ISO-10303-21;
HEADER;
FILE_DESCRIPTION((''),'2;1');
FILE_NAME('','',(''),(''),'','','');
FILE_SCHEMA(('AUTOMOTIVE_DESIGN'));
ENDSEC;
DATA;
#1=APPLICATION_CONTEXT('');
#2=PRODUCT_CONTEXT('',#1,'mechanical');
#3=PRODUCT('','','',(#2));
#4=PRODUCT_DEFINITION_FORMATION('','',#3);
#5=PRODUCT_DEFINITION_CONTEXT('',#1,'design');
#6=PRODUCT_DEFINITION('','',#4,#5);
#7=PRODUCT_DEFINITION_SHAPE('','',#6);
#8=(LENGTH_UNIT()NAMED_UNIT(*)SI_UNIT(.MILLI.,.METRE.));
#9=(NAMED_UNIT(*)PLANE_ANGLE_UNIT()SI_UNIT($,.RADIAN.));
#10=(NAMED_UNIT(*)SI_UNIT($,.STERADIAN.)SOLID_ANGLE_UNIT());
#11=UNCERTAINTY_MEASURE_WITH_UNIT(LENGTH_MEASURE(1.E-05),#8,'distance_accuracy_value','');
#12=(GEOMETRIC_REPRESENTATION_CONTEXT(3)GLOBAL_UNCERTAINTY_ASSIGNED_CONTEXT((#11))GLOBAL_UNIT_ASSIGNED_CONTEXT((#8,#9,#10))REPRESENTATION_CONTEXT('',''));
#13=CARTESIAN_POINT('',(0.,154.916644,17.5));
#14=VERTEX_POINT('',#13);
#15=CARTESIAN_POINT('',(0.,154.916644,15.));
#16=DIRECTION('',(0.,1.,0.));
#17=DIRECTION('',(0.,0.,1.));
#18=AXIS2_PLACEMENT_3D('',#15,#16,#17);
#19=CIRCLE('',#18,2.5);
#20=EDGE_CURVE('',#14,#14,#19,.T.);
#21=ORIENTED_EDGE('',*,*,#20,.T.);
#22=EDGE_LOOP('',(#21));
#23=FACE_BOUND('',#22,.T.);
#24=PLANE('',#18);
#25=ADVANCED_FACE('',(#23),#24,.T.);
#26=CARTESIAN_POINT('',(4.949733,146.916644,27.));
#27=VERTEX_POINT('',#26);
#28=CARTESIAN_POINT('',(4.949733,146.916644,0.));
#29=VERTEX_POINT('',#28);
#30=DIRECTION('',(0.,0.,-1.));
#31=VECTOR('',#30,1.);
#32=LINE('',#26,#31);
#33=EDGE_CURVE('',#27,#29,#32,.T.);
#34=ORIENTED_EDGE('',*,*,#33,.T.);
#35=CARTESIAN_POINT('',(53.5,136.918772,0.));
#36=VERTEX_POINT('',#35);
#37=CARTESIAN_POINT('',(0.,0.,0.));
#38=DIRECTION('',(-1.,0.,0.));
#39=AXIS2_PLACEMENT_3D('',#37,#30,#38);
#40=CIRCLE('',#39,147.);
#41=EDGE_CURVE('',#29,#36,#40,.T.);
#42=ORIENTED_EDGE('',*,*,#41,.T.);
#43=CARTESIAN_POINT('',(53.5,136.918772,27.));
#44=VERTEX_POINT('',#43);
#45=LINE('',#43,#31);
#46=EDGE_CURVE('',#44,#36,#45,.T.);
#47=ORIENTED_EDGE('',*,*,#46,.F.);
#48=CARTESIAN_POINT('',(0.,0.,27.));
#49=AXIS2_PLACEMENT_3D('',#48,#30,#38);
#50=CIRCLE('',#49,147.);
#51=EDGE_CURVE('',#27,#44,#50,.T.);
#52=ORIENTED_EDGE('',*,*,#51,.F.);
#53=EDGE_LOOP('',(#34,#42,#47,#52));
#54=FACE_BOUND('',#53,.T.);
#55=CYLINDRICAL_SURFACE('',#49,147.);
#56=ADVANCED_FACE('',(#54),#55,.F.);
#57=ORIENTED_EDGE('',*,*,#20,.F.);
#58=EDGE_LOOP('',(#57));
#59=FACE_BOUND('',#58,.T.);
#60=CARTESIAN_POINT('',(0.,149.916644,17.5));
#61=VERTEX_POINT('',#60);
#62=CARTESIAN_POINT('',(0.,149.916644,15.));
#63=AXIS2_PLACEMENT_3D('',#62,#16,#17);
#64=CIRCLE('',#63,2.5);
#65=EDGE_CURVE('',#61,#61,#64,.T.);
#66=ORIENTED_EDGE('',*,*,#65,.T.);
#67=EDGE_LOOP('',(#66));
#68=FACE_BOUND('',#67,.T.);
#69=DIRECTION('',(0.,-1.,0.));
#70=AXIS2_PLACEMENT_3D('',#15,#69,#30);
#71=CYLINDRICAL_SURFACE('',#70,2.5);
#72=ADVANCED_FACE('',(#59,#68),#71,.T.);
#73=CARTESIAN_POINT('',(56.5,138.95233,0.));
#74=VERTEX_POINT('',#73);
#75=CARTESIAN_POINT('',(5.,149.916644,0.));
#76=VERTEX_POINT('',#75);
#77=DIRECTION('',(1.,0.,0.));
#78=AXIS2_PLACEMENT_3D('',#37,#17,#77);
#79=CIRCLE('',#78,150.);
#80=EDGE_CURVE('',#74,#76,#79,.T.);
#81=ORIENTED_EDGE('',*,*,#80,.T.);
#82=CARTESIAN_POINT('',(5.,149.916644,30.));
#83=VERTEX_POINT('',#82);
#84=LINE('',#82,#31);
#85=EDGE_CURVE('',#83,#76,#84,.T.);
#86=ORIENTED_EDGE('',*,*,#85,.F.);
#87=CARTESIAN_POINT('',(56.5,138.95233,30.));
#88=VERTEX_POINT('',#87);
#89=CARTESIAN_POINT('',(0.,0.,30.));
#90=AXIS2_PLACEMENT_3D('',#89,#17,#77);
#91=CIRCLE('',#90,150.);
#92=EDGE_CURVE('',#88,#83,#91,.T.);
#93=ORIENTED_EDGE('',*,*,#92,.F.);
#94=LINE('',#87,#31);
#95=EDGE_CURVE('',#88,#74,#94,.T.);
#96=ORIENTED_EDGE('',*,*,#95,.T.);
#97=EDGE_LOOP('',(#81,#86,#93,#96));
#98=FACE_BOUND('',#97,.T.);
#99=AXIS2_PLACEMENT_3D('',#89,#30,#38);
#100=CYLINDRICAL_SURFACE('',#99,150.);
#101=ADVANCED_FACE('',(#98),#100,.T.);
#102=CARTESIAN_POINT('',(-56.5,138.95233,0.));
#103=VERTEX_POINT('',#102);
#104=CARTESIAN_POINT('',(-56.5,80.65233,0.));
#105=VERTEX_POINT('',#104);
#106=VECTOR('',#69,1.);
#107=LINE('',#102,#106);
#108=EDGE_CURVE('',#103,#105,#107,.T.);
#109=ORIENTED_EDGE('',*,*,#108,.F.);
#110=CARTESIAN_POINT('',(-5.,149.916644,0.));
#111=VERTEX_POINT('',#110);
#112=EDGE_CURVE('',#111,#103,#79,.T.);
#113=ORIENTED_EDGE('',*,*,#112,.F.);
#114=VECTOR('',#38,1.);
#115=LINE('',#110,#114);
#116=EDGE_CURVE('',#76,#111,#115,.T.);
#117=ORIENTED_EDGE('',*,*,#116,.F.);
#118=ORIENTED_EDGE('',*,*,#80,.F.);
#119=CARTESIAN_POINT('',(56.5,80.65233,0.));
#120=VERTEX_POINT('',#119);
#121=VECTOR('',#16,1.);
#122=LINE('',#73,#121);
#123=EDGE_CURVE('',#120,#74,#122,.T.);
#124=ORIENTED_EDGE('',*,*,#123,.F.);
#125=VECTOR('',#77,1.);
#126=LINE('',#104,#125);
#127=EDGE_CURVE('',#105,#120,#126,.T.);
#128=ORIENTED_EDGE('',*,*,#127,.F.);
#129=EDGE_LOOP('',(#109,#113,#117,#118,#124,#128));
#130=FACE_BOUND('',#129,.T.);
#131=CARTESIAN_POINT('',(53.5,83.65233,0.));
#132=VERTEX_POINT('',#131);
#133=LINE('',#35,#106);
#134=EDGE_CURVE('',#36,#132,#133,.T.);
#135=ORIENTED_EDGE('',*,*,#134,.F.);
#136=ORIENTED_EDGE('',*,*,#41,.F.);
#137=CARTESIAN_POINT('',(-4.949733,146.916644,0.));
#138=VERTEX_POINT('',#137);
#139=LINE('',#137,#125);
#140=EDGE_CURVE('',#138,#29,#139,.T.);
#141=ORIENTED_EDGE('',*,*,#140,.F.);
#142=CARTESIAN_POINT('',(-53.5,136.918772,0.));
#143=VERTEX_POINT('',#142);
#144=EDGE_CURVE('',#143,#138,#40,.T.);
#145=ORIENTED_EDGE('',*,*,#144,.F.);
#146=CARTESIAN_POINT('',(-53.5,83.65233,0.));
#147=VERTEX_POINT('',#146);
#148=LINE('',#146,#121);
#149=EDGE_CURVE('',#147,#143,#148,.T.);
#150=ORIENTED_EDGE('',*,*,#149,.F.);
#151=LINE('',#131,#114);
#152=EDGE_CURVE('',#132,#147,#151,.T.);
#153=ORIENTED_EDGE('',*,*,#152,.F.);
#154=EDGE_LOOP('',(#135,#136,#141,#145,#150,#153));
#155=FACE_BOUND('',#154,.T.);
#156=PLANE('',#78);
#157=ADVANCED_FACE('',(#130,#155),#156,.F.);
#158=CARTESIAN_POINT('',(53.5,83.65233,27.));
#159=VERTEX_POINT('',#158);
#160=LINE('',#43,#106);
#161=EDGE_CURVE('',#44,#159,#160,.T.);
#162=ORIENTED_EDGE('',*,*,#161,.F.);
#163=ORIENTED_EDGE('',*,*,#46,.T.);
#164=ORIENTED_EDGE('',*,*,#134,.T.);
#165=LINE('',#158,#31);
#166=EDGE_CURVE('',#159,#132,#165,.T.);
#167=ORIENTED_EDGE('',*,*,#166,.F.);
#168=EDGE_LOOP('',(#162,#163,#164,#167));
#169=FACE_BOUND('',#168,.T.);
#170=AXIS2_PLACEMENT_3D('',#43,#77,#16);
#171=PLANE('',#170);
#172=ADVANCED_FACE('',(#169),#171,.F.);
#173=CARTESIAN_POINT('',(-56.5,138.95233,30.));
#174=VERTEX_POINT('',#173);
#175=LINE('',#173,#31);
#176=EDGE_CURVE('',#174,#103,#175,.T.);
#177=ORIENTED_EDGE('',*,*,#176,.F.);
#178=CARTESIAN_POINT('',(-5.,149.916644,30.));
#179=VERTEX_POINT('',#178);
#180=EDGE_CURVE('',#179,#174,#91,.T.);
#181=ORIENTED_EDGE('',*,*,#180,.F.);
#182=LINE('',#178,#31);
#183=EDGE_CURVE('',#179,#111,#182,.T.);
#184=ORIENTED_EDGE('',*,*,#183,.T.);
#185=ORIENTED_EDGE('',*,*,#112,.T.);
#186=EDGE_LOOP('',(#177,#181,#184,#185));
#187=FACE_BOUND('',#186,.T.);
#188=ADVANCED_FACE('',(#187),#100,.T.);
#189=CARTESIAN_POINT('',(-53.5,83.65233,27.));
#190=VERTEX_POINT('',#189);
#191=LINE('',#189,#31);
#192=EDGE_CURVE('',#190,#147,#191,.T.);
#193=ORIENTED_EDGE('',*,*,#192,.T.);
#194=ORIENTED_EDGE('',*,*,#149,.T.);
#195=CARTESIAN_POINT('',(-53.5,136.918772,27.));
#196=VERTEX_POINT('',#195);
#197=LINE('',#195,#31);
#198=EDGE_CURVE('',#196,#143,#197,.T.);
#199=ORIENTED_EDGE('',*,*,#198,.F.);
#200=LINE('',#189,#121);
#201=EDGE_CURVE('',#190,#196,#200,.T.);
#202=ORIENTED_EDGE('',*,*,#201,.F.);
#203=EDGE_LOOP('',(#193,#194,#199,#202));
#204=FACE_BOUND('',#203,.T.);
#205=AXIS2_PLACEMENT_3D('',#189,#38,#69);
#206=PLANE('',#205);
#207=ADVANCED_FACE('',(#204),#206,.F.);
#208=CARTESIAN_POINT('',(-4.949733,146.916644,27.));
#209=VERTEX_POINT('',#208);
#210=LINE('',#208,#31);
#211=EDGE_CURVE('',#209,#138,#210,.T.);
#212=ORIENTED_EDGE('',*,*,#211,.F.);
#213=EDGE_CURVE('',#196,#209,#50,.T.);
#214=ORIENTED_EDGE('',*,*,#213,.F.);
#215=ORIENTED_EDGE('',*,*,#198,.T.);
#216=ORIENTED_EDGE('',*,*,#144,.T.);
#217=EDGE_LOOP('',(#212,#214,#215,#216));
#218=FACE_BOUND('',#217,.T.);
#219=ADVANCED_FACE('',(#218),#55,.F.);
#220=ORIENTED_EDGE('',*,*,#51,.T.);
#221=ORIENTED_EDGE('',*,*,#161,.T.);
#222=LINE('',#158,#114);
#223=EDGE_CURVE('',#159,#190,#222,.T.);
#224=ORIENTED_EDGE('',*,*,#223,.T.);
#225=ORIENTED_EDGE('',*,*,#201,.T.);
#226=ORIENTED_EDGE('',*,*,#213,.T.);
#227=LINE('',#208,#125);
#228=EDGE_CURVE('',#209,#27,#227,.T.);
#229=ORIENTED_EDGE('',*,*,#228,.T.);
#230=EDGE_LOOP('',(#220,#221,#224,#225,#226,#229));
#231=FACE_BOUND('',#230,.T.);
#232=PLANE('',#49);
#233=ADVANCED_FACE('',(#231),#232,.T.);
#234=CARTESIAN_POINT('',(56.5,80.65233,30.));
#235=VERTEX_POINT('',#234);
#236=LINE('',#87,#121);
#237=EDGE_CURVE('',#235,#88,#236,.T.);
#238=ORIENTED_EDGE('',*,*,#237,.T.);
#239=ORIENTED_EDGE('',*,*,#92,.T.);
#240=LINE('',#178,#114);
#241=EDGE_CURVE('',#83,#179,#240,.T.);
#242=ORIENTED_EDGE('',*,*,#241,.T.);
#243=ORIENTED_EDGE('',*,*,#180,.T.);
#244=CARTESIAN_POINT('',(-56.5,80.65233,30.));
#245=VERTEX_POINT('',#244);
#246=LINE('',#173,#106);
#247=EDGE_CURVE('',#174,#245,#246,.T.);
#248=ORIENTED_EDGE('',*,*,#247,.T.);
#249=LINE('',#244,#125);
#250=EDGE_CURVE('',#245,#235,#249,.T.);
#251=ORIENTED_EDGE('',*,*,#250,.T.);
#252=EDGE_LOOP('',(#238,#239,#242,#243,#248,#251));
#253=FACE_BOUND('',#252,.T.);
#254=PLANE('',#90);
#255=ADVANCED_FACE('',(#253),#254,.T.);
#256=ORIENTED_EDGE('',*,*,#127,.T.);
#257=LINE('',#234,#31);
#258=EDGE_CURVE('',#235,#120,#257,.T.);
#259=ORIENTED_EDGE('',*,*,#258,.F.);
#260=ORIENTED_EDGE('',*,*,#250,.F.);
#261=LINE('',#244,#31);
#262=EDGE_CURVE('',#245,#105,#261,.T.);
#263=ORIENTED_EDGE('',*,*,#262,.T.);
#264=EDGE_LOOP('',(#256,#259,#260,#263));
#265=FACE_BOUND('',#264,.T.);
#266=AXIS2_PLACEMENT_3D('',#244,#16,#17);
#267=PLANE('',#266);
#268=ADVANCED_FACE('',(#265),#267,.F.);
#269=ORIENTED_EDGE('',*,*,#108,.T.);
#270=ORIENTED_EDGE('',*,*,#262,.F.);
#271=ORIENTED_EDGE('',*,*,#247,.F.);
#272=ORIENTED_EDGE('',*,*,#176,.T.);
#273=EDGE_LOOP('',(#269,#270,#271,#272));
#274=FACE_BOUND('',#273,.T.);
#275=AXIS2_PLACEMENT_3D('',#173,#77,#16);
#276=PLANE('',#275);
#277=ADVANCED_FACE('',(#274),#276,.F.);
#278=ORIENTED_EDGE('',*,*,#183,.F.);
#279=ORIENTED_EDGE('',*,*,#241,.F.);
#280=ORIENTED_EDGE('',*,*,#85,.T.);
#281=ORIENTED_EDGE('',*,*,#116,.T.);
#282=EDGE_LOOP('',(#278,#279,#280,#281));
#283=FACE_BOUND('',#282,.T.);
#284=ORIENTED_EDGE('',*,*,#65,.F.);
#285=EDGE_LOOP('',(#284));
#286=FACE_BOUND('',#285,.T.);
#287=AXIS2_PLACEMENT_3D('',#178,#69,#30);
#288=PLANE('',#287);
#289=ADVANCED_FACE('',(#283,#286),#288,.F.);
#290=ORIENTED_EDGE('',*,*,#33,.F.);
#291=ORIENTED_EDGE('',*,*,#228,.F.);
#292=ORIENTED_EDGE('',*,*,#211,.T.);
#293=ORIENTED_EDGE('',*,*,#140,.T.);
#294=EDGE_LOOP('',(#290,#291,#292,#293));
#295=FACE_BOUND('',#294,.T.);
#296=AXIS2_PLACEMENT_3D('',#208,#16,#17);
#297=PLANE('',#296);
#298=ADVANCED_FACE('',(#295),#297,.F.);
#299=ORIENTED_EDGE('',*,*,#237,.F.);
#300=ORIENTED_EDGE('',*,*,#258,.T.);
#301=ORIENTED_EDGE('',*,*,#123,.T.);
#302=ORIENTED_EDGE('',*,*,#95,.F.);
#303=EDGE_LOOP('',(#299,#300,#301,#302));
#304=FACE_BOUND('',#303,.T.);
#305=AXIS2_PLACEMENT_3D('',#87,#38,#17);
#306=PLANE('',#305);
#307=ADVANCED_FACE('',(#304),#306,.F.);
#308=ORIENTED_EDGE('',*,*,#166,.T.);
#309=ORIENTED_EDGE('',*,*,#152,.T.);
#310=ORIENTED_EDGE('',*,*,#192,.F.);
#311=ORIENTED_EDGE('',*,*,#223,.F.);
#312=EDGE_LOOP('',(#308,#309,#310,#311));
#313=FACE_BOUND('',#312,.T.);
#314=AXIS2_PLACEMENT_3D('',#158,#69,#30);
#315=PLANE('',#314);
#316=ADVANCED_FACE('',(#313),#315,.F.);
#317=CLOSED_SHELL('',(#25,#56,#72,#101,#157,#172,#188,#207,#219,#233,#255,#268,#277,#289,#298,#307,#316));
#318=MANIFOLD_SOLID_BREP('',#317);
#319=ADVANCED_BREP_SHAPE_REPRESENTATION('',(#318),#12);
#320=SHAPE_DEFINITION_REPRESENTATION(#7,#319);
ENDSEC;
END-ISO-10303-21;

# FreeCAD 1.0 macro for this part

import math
import FreeCAD as App
import Part
import Sketcher
Q = App.Units.Quantity

doc = App.newDocument("Part")
body = doc.addObject("PartDesign::Body", "Body")

# Sketch on XY plane
sketch1 = body.newObject("Sketcher::SketchObject", "Sketch")
sketch1.AttachmentSupport = (doc.getObject("XY_Plane"), [""])
sketch1.MapMode = "FlatFace"
sketch1.addGeometry([
    Part.LineSegment(App.Vector(5, 149.916644, 0), App.Vector(-5, 149.916644, 0)),  # 0
    Part.ArcOfCircle(Part.Circle(App.Vector(0, 0, 0), App.Vector(0, 0, 1), 150), math.radians(91.910213), math.radians(112.127361)),  # 1
    Part.LineSegment(App.Vector(-56.5, 138.95233, 0), App.Vector(-56.5, 80.65233, 0)),  # 2
    Part.LineSegment(App.Vector(-56.5, 80.65233, 0), App.Vector(56.5, 80.65233, 0)),  # 3
    Part.LineSegment(App.Vector(56.5, 80.65233, 0), App.Vector(56.5, 138.95233, 0)),  # 4
    Part.ArcOfCircle(Part.Circle(App.Vector(0, 0, 0), App.Vector(0, 0, 1), 150), math.radians(67.872639), math.radians(88.089787)),  # 5
], False)
sketch1.addConstraint([
    Sketcher.Constraint("Coincident", 0, 2, 1, 1),
    Sketcher.Constraint("Coincident", 1, 2, 2, 1),
    Sketcher.Constraint("Coincident", 2, 2, 3, 1),
    Sketcher.Constraint("Coincident", 3, 2, 4, 1),
    Sketcher.Constraint("Coincident", 4, 2, 5, 1),
    Sketcher.Constraint("Coincident", 5, 2, 0, 1),
    Sketcher.Constraint("Horizontal", 0),
    Sketcher.Constraint("Vertical", 2),
    Sketcher.Constraint("Horizontal", 3),
    Sketcher.Constraint("Vertical", 4),
    Sketcher.Constraint("Coincident", 1, 3, -1, 1),
    Sketcher.Constraint("Coincident", 5, 3, -1, 1),
    Sketcher.Constraint("Equal", 1, 5),
    Sketcher.Constraint("Horizontal", 1, 2, 4, 2),
    Sketcher.Constraint("Radius", 1, Q("150 mm")),
    Sketcher.Constraint("DistanceX", 0, 2, 0, 1, Q("10 mm")),
    Sketcher.Constraint("DistanceX", 3, 1, 3, 2, Q("113 mm")),
    Sketcher.Constraint("DistanceY", 2, 2, 2, 1, Q("58.3 mm")),
])
pad1 = body.newObject("PartDesign::Pad", "Pad")
pad1.Profile = sketch1
pad1.Length = 30

# Sketch on XY plane
sketch2 = body.newObject("Sketcher::SketchObject", "Sketch001")
sketch2.AttachmentSupport = (doc.getObject("XY_Plane"), [""])
sketch2.MapMode = "FlatFace"
sketch2.addGeometry([
    Part.LineSegment(App.Vector(-4.949733, 146.916644, 0), App.Vector(4.949733, 146.916644, 0)),  # 0
    Part.ArcOfCircle(Part.Circle(App.Vector(0, 0, 0), App.Vector(0, 0, 1), 147), math.radians(68.657294), math.radians(88.070391)),  # 1
    Part.LineSegment(App.Vector(53.5, 136.918772, 0), App.Vector(53.5, 83.65233, 0)),  # 2
    Part.LineSegment(App.Vector(53.5, 83.65233, 0), App.Vector(-53.5, 83.65233, 0)),  # 3
    Part.LineSegment(App.Vector(-53.5, 83.65233, 0), App.Vector(-53.5, 136.918772, 0)),  # 4
    Part.ArcOfCircle(Part.Circle(App.Vector(0, 0, 0), App.Vector(0, 0, 1), 147), math.radians(91.929609), math.radians(111.342706)),  # 5
], False)
sketch2.addConstraint([
    Sketcher.Constraint("Coincident", 0, 2, 1, 2),
    Sketcher.Constraint("Coincident", 1, 1, 2, 1),
    Sketcher.Constraint("Coincident", 2, 2, 3, 1),
    Sketcher.Constraint("Coincident", 3, 2, 4, 1),
    Sketcher.Constraint("Coincident", 4, 2, 5, 2),
    Sketcher.Constraint("Coincident", 5, 1, 0, 1),
    Sketcher.Constraint("Horizontal", 0),
    Sketcher.Constraint("Vertical", 2),
    Sketcher.Constraint("Horizontal", 3),
    Sketcher.Constraint("Vertical", 4),
    Sketcher.Constraint("Coincident", 1, 3, -1, 1),
    Sketcher.Constraint("Coincident", 5, 3, -1, 1),
    Sketcher.Constraint("Equal", 1, 5),
    Sketcher.Constraint("Horizontal", 1, 1, 4, 2),
    Sketcher.Constraint("Radius", 1, Q("147 mm")),
    Sketcher.Constraint("DistanceX", 3, 2, 3, 1, Q("107 mm")),
    Sketcher.Constraint("DistanceY", 2, 2, 2, 1, Q("53.266442 mm")),
    Sketcher.Constraint("DistanceX", 0, 1, 0, 2, Q("9.899467 mm")),
])
pocket1 = body.newObject("PartDesign::Pocket", "Pocket")
pocket1.Profile = sketch2
pocket1.Length = 27
pocket1.Reversed = True

# Sketch on XZ plane
sketch3 = body.newObject("Sketcher::SketchObject", "Sketch002")
sketch3.AttachmentSupport = (doc.getObject("XZ_Plane"), [""])
sketch3.MapMode = "FlatFace"
sketch3.AttachmentOffset = App.Placement(App.Vector(0, 0, -149.916644), App.Rotation())
sketch3.addGeometry(Part.Circle(App.Vector(0, 15, 0), App.Vector(0, 0, 1), 2.5), False)
sketch3.addConstraint([
    Sketcher.Constraint("PointOnObject", 0, 3, -2),
    Sketcher.Constraint("Diameter", 0, Q("5 mm")),
    Sketcher.Constraint("DistanceY", -1, 1, 0, 3, Q("15 mm")),
])
pad2 = body.newObject("PartDesign::Pad", "Pad001")
pad2.Profile = sketch3
pad2.Length = 5
pad2.Reversed = True

doc.recompute()
